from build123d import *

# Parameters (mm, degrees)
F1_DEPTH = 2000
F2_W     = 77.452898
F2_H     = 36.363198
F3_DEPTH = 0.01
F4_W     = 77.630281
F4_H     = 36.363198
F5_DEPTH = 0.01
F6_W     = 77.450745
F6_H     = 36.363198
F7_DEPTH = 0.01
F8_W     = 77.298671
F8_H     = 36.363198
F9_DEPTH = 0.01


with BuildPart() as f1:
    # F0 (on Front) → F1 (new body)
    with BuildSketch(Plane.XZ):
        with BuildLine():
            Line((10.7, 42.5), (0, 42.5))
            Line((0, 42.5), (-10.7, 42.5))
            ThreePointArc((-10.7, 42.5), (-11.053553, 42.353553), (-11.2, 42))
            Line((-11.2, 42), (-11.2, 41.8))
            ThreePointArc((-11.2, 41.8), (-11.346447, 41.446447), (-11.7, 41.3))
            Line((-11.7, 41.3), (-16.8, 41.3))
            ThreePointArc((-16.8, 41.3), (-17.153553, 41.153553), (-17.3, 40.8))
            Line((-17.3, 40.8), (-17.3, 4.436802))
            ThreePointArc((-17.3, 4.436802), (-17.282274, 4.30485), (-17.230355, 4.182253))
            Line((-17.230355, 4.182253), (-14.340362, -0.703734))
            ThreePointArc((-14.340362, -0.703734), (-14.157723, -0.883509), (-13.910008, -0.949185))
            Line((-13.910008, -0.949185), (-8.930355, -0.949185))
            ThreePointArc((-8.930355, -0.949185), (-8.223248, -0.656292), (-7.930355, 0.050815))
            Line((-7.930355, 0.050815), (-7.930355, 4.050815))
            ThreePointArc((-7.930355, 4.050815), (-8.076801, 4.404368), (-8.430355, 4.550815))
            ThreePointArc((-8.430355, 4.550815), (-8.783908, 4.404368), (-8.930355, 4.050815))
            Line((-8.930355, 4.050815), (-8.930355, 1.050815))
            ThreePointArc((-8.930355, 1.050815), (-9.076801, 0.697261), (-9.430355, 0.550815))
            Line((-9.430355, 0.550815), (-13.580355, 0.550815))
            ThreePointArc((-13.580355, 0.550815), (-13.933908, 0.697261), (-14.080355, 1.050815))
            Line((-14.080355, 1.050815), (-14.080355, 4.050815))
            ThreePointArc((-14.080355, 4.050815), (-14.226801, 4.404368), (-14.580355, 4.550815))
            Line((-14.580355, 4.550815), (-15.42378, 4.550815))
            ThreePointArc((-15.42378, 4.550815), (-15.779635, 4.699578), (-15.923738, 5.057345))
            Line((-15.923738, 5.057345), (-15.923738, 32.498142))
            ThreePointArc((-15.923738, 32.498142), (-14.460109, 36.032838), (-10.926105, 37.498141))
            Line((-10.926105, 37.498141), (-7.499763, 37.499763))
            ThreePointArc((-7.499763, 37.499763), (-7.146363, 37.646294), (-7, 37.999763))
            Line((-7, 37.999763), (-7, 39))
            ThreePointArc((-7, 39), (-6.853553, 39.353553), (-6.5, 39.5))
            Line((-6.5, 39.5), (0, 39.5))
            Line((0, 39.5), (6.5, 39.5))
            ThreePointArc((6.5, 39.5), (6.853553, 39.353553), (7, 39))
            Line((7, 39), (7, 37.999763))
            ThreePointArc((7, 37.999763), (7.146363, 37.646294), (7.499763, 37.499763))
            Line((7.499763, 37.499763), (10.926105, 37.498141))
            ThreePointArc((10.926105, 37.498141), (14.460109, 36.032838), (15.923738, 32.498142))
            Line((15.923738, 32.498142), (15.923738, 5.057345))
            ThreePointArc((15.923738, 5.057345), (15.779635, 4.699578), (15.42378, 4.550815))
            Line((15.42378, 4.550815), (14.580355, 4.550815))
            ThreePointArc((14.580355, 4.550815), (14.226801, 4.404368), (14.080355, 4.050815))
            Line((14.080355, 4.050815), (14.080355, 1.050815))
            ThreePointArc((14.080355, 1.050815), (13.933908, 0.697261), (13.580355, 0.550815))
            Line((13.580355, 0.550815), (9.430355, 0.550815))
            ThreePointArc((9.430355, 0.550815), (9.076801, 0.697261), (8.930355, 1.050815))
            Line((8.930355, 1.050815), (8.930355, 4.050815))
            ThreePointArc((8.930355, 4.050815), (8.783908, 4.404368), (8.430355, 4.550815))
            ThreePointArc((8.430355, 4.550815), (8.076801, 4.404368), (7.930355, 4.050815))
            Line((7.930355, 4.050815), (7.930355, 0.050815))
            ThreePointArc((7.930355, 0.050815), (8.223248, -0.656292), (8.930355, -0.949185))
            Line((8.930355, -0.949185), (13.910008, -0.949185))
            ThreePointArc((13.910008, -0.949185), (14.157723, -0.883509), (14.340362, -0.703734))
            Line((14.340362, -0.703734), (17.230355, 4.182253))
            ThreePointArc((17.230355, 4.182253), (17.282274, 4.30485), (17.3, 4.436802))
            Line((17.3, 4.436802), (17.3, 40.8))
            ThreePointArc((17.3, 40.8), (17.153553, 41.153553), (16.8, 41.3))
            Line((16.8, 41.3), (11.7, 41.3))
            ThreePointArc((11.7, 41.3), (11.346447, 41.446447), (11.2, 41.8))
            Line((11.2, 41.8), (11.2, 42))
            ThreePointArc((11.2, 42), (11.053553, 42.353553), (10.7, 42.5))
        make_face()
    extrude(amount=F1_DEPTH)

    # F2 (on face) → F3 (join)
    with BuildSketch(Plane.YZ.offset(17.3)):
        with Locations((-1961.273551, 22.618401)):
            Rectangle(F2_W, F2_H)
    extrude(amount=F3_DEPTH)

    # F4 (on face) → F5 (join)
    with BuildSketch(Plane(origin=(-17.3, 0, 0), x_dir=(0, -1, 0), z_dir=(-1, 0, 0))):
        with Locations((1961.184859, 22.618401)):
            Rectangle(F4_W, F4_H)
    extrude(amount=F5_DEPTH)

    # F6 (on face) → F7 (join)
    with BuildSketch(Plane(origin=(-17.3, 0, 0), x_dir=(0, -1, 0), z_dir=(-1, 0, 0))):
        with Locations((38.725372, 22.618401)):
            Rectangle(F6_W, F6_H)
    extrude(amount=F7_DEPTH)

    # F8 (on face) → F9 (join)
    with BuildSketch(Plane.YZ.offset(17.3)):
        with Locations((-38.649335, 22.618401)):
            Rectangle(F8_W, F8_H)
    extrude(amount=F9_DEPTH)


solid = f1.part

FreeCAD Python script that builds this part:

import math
import FreeCAD as App
import Part
import Sketcher
from FreeCAD import Vector

doc = App.newDocument("Part")
params = doc.addObject("Spreadsheet::Sheet", "Params")
for row, (alias, value) in enumerate([
    ("sketch1_radius", "0.999999 mm"),
    ("sketch1_radius2", "5 mm"),
    ("sketch1_width", "13 mm"),
    ("sketch1_height", "4 mm"),
    ("sketch1_height2", "3 mm"),
    ("pad1_length", "2000 mm"),
    ("pad2_length", "0.01 mm"),
    ("pad3_length", "0.01 mm"),
    ("pad4_length", "0.01 mm"),
    ("pad5_length", "0.01 mm"),
], start=1):
    params.set(f"A{row}", alias)
    params.set(f"B{row}", "=" + value)
    params.setAlias(f"B{row}", alias)

body = doc.addObject("PartDesign::Body", "Body")

sketch1 = body.newObject("Sketcher::SketchObject", "Sketch")
sketch1.AttachmentSupport = (doc.getObject("XZ_Plane"), [""])
sketch1.MapMode = "FlatFace"
sketch1.addGeometry([
    Part.LineSegment(Vector(10.7, 42.5, 0), Vector(-10.7, 42.5, 0)),
    Part.ArcOfCircle(Part.Circle(Vector(-10.699999, 41.999999, 0), Vector(0, 0, 1), 0.500001), math.radians(90.000153), math.radians(179.999847)),
    Part.LineSegment(Vector(-11.2, 42, 0), Vector(-11.2, 41.8, 0)),
    Part.ArcOfCircle(Part.Circle(Vector(-11.700001, 41.800001, 0), Vector(0, 0, 1), 0.500001), math.radians(-89.999847), math.radians(-0.000153)),
    Part.LineSegment(Vector(-11.7, 41.3, 0), Vector(-16.8, 41.3, 0)),
    Part.ArcOfCircle(Part.Circle(Vector(-16.799999, 40.799999, 0), Vector(0, 0, 1), 0.500001), math.radians(90.000153), math.radians(179.999847)),
    Part.LineSegment(Vector(-17.3, 40.8, 0), Vector(-17.3, 4.436802, 0)),
    Part.ArcOfCircle(Part.Circle(Vector(-16.799979, 4.436807, 0), Vector(0, 0, 1), 0.500021), math.radians(-179.999474), math.radians(-149.39706)),
    Part.LineSegment(Vector(-17.230355, 4.182253, 0), Vector(-14.340362, -0.703734, 0)),
    Part.ArcOfCircle(Part.Circle(Vector(-13.910008, -0.449186, 0), Vector(0, 0, 1), 0.499999), math.radians(-149.396319), math.radians(-89.999947)),
    Part.LineSegment(Vector(-13.910008, -0.949185, 0), Vector(-8.930355, -0.949185, 0)),
    Part.ArcOfCircle(Part.Circle(Vector(-8.930354, 0.050814, 0), Vector(0, 0, 1), 0.999999), math.radians(-90.000043), math.radians(0.000043)),
    Part.LineSegment(Vector(-7.930355, 0.050815, 0), Vector(-7.930355, 4.050815, 0)),
    Part.ArcOfCircle(Part.Circle(Vector(-8.430355, 4.050815, 0), Vector(0, 0, 1), 0.5), math.radians(-0.000043), math.radians(90.000043)),
    Part.ArcOfCircle(Part.Circle(Vector(-8.430354, 4.050814, 0), Vector(0, 0, 1), 0.500001), math.radians(90.000153), math.radians(179.999847)),
    Part.LineSegment(Vector(-8.930355, 4.050815, 0), Vector(-8.930355, 1.050815, 0)),
    Part.ArcOfCircle(Part.Circle(Vector(-9.430353, 1.050813, 0), Vector(0, 0, 1), 0.499998), math.radians(-90.000238), math.radians(0.000238)),
    Part.LineSegment(Vector(-9.430355, 0.550815, 0), Vector(-13.580355, 0.550815, 0)),
    Part.ArcOfCircle(Part.Circle(Vector(-13.580355, 1.050815, 0), Vector(0, 0, 1), 0.5), math.radians(179.999957), math.radians(270.000043)),
    Part.LineSegment(Vector(-14.080355, 1.050815, 0), Vector(-14.080355, 4.050815, 0)),
    Part.ArcOfCircle(Part.Circle(Vector(-14.580355, 4.050815, 0), Vector(0, 0, 1), 0.5), math.radians(-0.000043), math.radians(90.000043)),
    Part.LineSegment(Vector(-14.580355, 4.550815, 0), Vector(-15.42378, 4.550815, 0)),
    Part.ArcOfCircle(Part.Circle(Vector(-15.42378, 5.050816, 0), Vector(0, 0, 1), 0.500001), math.radians(179.251763), math.radians(270.000006)),
    Part.LineSegment(Vector(-15.923738, 5.057345, 0), Vector(-15.923738, 32.498142, 0)),
    Part.ArcOfCircle(Part.Circle(Vector(-10.923738, 32.498141, 0), Vector(0, 0, 1), 5), math.radians(90.027127), math.radians(179.999992)),
    Part.LineSegment(Vector(-10.926105, 37.498141, 0), Vector(-7.499763, 37.499763, 0)),
    Part.ArcOfCircle(Part.Circle(Vector(-7.500001, 37.999764, 0), Vector(0, 0, 1), 0.500001), math.radians(-89.972682), math.radians(-0.000154)),
    Part.LineSegment(Vector(-7, 37.999763, 0), Vector(-7, 39, 0)),
    Part.ArcOfCircle(Part.Circle(Vector(-6.499999, 38.999999, 0), Vector(0, 0, 1), 0.500001), math.radians(90.000153), math.radians(179.999847)),
    Part.LineSegment(Vector(-6.5, 39.5, 0), Vector(6.5, 39.5, 0)),
    Part.ArcOfCircle(Part.Circle(Vector(6.499999, 38.999999, 0), Vector(0, 0, 1), 0.500001), math.radians(0.000153), math.radians(89.999847)),
    Part.LineSegment(Vector(7, 39, 0), Vector(7, 37.999763, 0)),
    Part.ArcOfCircle(Part.Circle(Vector(7.500001, 37.999764, 0), Vector(0, 0, 1), 0.500001), math.radians(-179.999846), math.radians(-90.027318)),
    Part.LineSegment(Vector(7.499763, 37.499763, 0), Vector(10.926105, 37.498141, 0)),
    Part.ArcOfCircle(Part.Circle(Vector(10.923738, 32.498141, 0), Vector(0, 0, 1), 5), math.radians(0.000008), math.radians(89.972873)),
    Part.LineSegment(Vector(15.923738, 32.498142, 0), Vector(15.923738, 5.057345, 0)),
    Part.ArcOfCircle(Part.Circle(Vector(15.42378, 5.050816, 0), Vector(0, 0, 1), 0.500001), math.radians(-90.000006), math.radians(0.748237)),
    Part.LineSegment(Vector(15.42378, 4.550815, 0), Vector(14.580355, 4.550815, 0)),
    Part.ArcOfCircle(Part.Circle(Vector(14.580355, 4.050815, 0), Vector(0, 0, 1), 0.5), math.radians(89.999957), math.radians(180.000043)),
    Part.LineSegment(Vector(14.080355, 4.050815, 0), Vector(14.080355, 1.050815, 0)),
    Part.ArcOfCircle(Part.Circle(Vector(13.580355, 1.050815, 0), Vector(0, 0, 1), 0.5), math.radians(-90.000043), math.radians(0.000043)),
    Part.LineSegment(Vector(13.580355, 0.550815, 0), Vector(9.430355, 0.550815, 0)),
    Part.ArcOfCircle(Part.Circle(Vector(9.430353, 1.050813, 0), Vector(0, 0, 1), 0.499998), math.radians(179.999762), math.radians(270.000238)),
    Part.LineSegment(Vector(8.930355, 1.050815, 0), Vector(8.930355, 4.050815, 0)),
    Part.ArcOfCircle(Part.Circle(Vector(8.430354, 4.050814, 0), Vector(0, 0, 1), 0.500001), math.radians(0.000153), math.radians(89.999847)),
    Part.ArcOfCircle(Part.Circle(Vector(8.430355, 4.050815, 0), Vector(0, 0, 1), 0.5), math.radians(89.999957), math.radians(180.000043)),
    Part.LineSegment(Vector(7.930355, 4.050815, 0), Vector(7.930355, 0.050815, 0)),
    Part.ArcOfCircle(Part.Circle(Vector(8.930354, 0.050814, 0), Vector(0, 0, 1), 0.999999), math.radians(179.999957), math.radians(270.000043)),
    Part.LineSegment(Vector(8.930355, -0.949185, 0), Vector(13.910008, -0.949185, 0)),
    Part.ArcOfCircle(Part.Circle(Vector(13.910008, -0.449186, 0), Vector(0, 0, 1), 0.499999), math.radians(-90.000053), math.radians(-30.603681)),
    Part.LineSegment(Vector(14.340362, -0.703734, 0), Vector(17.230355, 4.182253, 0)),
    Part.ArcOfCircle(Part.Circle(Vector(16.799979, 4.436807, 0), Vector(0, 0, 1), 0.500021), math.radians(-30.60294), math.radians(-0.000526)),
    Part.LineSegment(Vector(17.3, 4.436802, 0), Vector(17.3, 40.8, 0)),
    Part.ArcOfCircle(Part.Circle(Vector(16.799999, 40.799999, 0), Vector(0, 0, 1), 0.500001), math.radians(0.000153), math.radians(89.999847)),
    Part.LineSegment(Vector(16.8, 41.3, 0), Vector(11.7, 41.3, 0)),
    Part.ArcOfCircle(Part.Circle(Vector(11.700001, 41.800001, 0), Vector(0, 0, 1), 0.500001), math.radians(-179.999847), math.radians(-90.000153)),
    Part.LineSegment(Vector(11.2, 41.8, 0), Vector(11.2, 42, 0)),
    Part.ArcOfCircle(Part.Circle(Vector(10.699999, 41.999999, 0), Vector(0, 0, 1), 0.500001), math.radians(0.000153), math.radians(89.999847)),
], False)
sketch1.addConstraint([
    Sketcher.Constraint("Coincident", 0, 2, 1, 1),
    Sketcher.Constraint("Coincident", 1, 2, 2, 1),
    Sketcher.Constraint("Coincident", 2, 2, 3, 2),
    Sketcher.Constraint("Coincident", 3, 1, 4, 1),
    Sketcher.Constraint("Coincident", 4, 2, 5, 1),
    Sketcher.Constraint("Coincident", 5, 2, 6, 1),
    Sketcher.Constraint("Coincident", 6, 2, 7, 1),
    Sketcher.Constraint("Coincident", 7, 2, 8, 1),
    Sketcher.Constraint("Tangent", 8, 2, 9, 1),
    Sketcher.Constraint("Tangent", 9, 2, 10, 1),
    Sketcher.Constraint("Tangent", 10, 2, 11, 1),
    Sketcher.Constraint("Tangent", 11, 2, 12, 1),
    Sketcher.Constraint("Tangent", 12, 2, 13, 1),
    Sketcher.Constraint("Tangent", 13, 2, 14, 1),
    Sketcher.Constraint("Coincident", 14, 2, 15, 1),
    Sketcher.Constraint("Coincident", 15, 2, 16, 2),
    Sketcher.Constraint("Coincident", 16, 1, 17, 1),
    Sketcher.Constraint("Tangent", 17, 2, 18, 2),
    Sketcher.Constraint("Tangent", 18, 1, 19, 1),
    Sketcher.Constraint("Tangent", 19, 2, 20, 1),
    Sketcher.Constraint("Tangent", 20, 2, 21, 1),
    Sketcher.Constraint("Tangent", 21, 2, 22, 2),
    Sketcher.Constraint("Coincident", 22, 1, 23, 1),
    Sketcher.Constraint("Tangent", 23, 2, 24, 2),
    Sketcher.Constraint("Tangent", 24, 1, 25, 1),
    Sketcher.Constraint("Coincident", 25, 2, 26, 1),
    Sketcher.Constraint("Coincident", 26, 2, 27, 1),
    Sketcher.Constraint("Coincident", 27, 2, 28, 2),
    Sketcher.Constraint("Coincident", 28, 1, 29, 1),
    Sketcher.Constraint("Coincident", 29, 2, 30, 2),
    Sketcher.Constraint("Coincident", 30, 1, 31, 1),
    Sketcher.Constraint("Coincident", 31, 2, 32, 1),
    Sketcher.Constraint("Coincident", 32, 2, 33, 1),
    Sketcher.Constraint("Tangent", 33, 2, 34, 2),
    Sketcher.Constraint("Tangent", 34, 1, 35, 1),
    Sketcher.Constraint("Coincident", 35, 2, 36, 2),
    Sketcher.Constraint("Tangent", 36, 1, 37, 1),
    Sketcher.Constraint("Tangent", 37, 2, 38, 1),
    Sketcher.Constraint("Tangent", 38, 2, 39, 1),
    Sketcher.Constraint("Tangent", 39, 2, 40, 2),
    Sketcher.Constraint("Tangent", 40, 1, 41, 1),
    Sketcher.Constraint("Coincident", 41, 2, 42, 2),
    Sketcher.Constraint("Coincident", 42, 1, 43, 1),
    Sketcher.Constraint("Coincident", 43, 2, 44, 1),
    Sketcher.Constraint("Tangent", 44, 2, 45, 1),
    Sketcher.Constraint("Tangent", 45, 2, 46, 1),
    Sketcher.Constraint("Tangent", 46, 2, 47, 1),
    Sketcher.Constraint("Tangent", 47, 2, 48, 1),
    Sketcher.Constraint("Tangent", 48, 2, 49, 1),
    Sketcher.Constraint("Tangent", 49, 2, 50, 1),
    Sketcher.Constraint("Coincident", 50, 2, 51, 1),
    Sketcher.Constraint("Coincident", 51, 2, 52, 1),
    Sketcher.Constraint("Coincident", 52, 2, 53, 1),
    Sketcher.Constraint("Coincident", 53, 2, 54, 1),
    Sketcher.Constraint("Coincident", 54, 2, 55, 2),
    Sketcher.Constraint("Coincident", 55, 1, 56, 1),
    Sketcher.Constraint("Coincident", 56, 2, 57, 1),
    Sketcher.Constraint("Coincident", 57, 2, 0, 1),
    Sketcher.Constraint("Horizontal", 0),
    Sketcher.Constraint("Vertical", 2),
    Sketcher.Constraint("Horizontal", 4),
    Sketcher.Constraint("Vertical", 6),
    Sketcher.Constraint("Horizontal", 10),
    Sketcher.Constraint("Vertical", 12),
    Sketcher.Constraint("Vertical", 15),
    Sketcher.Constraint("Horizontal", 17),
    Sketcher.Constraint("Vertical", 19),
    Sketcher.Constraint("Horizontal", 21),
    Sketcher.Constraint("Vertical", 23),
    Sketcher.Constraint("Vertical", 27),
    Sketcher.Constraint("Horizontal", 29),
    Sketcher.Constraint("Vertical", 31),
    Sketcher.Constraint("Vertical", 35),
    Sketcher.Constraint("Horizontal", 37),
    Sketcher.Constraint("Vertical", 39),
    Sketcher.Constraint("Horizontal", 41),
    Sketcher.Constraint("Vertical", 43),
    Sketcher.Constraint("Vertical", 46),
    Sketcher.Constraint("Horizontal", 48),
    Sketcher.Constraint("Vertical", 52),
    Sketcher.Constraint("Horizontal", 54),
    Sketcher.Constraint("Vertical", 56),
    Sketcher.Constraint("Equal", 1, 3),
    Sketcher.Constraint("Equal", 3, 5),
    Sketcher.Constraint("Equal", 9, 13),
    Sketcher.Constraint("Equal", 13, 14),
    Sketcher.Constraint("Equal", 13, 16),
    Sketcher.Constraint("Equal", 16, 18),
    Sketcher.Constraint("Equal", 18, 20),
    Sketcher.Constraint("Equal", 20, 22),
    Sketcher.Constraint("Equal", 22, 26),
    Sketcher.Constraint("Equal", 26, 28),
    Sketcher.Constraint("Equal", 28, 30),
    Sketcher.Constraint("Equal", 30, 32),
    Sketcher.Constraint("Equal", 24, 34),
    Sketcher.Constraint("Equal", 32, 36),
    Sketcher.Constraint("Equal", 36, 38),
    Sketcher.Constraint("Equal", 38, 40),
    Sketcher.Constraint("Equal", 40, 42),
    Sketcher.Constraint("Equal", 40, 44),
    Sketcher.Constraint("Equal", 44, 45),
    Sketcher.Constraint("Equal", 11, 47),
    Sketcher.Constraint("Equal", 45, 49),
    Sketcher.Constraint("Equal", 7, 51),
    Sketcher.Constraint("Equal", 45, 53),
    Sketcher.Constraint("Equal", 53, 55),
    Sketcher.Constraint("Equal", 55, 57),
    Sketcher.Constraint("Symmetric", 26, 3, 32, 3, -2),
    Sketcher.Constraint("Symmetric", 24, 3, 34, 3, -2),
    Sketcher.Constraint("Symmetric", 22, 3, 36, 3, -2),
    Sketcher.Constraint("Symmetric", 18, 3, 40, 3, -2),
    Sketcher.Constraint("Symmetric", 13, 3, 44, 3, -2),
    Sketcher.Constraint("Symmetric", 9, 3, 49, 3, -2),
    Sketcher.Constraint("Symmetric", 7, 3, 51, 3, -2),
    Sketcher.Constraint("Symmetric", 5, 3, 53, 3, -2),
    Sketcher.Constraint("Symmetric", 2, 2, 55, 1, -2),
    Sketcher.Constraint("Horizontal", 14, 3, 20, 3),
    Sketcher.Constraint("Horizontal", 57, 3, 1, 2),
    Sketcher.Constraint("Horizontal", 55, 3, 2, 2),
    Sketcher.Constraint("Horizontal", 53, 3, 5, 2),
    Sketcher.Constraint("Horizontal", 12, 2, 14, 2),
    Sketcher.Constraint("Horizontal", 40, 3, 15, 2),
    Sketcher.Constraint("Horizontal", 32, 3, 26, 2),
    Sketcher.Constraint("Horizontal", 30, 3, 27, 2),
    Sketcher.Constraint("Horizontal", 27, 2, 30, 1),
    Sketcher.Constraint("Horizontal", 26, 2, 31, 2),
    Sketcher.Constraint("Horizontal", 39, 2, 42, 1),
    Sketcher.Constraint("Horizontal", 38, 2, 43, 2),
    Sketcher.Constraint("Horizontal", 7, 2, 50, 2),
    Sketcher.Constraint("Horizontal", 6, 2, 51, 2),
    Sketcher.Constraint("Horizontal", 5, 2, 52, 2),
    Sketcher.Constraint("Horizontal", 1, 2, 56, 2),
    Sketcher.Constraint("Vertical", 1, 3, 0, 2),
    Sketcher.Constraint("Vertical", 5, 3, 4, 2),
    Sketcher.Constraint("Vertical", 14, 3, 13, 2),
    Sketcher.Constraint("Vertical", 10, 2, 14, 2),
    Sketcher.Constraint("Vertical", 30, 3, 29, 2),
    Sketcher.Constraint("Vertical", 45, 3, 44, 2),
    Sketcher.Constraint("Vertical", 55, 3, 54, 2),
    Sketcher.Constraint("Equal", 17, 41),
    Sketcher.Constraint("Equal", 4, 54),
    Sketcher.Constraint("Equal", 25, 33),
    Sketcher.Constraint("Radius", 11, 0.999999),
    Sketcher.Constraint("Radius", 24, 5.0),
    Sketcher.Constraint("DistanceX", 29, 1, 29, 2, 13.0),
    Sketcher.Constraint("DistanceY", 12, 1, 12, 2, 4.0),
    Sketcher.Constraint("DistanceY", 15, 2, 15, 1, 3.0),
    Sketcher.Constraint("DistanceX", 0, 2, 0, 1, 21.4),
    Sketcher.Constraint("DistanceX", 4, 2, 4, 1, 5.1),
    Sketcher.Constraint("DistanceY", 2, 2, 2, 1, 0.2),
    Sketcher.Constraint("DistanceY", -1, 1, 1, 3, 41.999999),
    Sketcher.Constraint("DistanceY", -1, 1, 28, 3, 38.999999),
    Sketcher.Constraint("DistanceX", 26, 2, -1, 1, 7.0),
    Sketcher.Constraint("DistanceX", 17, 2, 17, 1, 4.15),
    Sketcher.Constraint("DistanceX", 1, 3, -1, 1, 10.699999),
    Sketcher.Constraint("DistanceX", 5, 3, -1, 1, 16.799999),
    Sketcher.Constraint("Radius", 7, 0.500021),
    Sketcher.Constraint("Distance", 8, 5.6767),
    Sketcher.Constraint("DistanceX", 10, 1, 10, 2, 4.979653),
    Sketcher.Constraint("DistanceX", 21, 2, 21, 1, 0.843425),
    Sketcher.Constraint("DistanceY", 6, 2, 6, 1, 36.363198),
    Sketcher.Constraint("DistanceY", 23, 1, 23, 2, 27.440797),
    Sketcher.Constraint("DistanceY", 27, 1, 27, 2, 1.000237),
    Sketcher.Constraint("DistanceX", 9, 3, -1, 1, 13.910008),
    Sketcher.Constraint("DistanceX", 22, 3, -1, 1, 15.42378),
    Sketcher.Constraint("DistanceY", -1, 1, 24, 3, 32.498141),
    Sketcher.Constraint("Distance", 25, 3.426342),
    Sketcher.Constraint("DistanceY", -1, 1, 7, 3, 4.436807),
    Sketcher.Constraint("DistanceY", 9, 3, -1, 1, 0.449186),
])
sketch1.setExpression("Constraints[142]", "Params.sketch1_radius")
sketch1.setExpression("Constraints[143]", "Params.sketch1_radius2")
sketch1.setExpression("Constraints[144]", "Params.sketch1_width")
sketch1.setExpression("Constraints[145]", "Params.sketch1_height")
sketch1.setExpression("Constraints[146]", "Params.sketch1_height2")
pad1 = body.newObject("PartDesign::Pad", "Pad")
pad1.Profile = sketch1
pad1.setExpression("Length", "Params.pad1_length")

sketch2 = body.newObject("Sketcher::SketchObject", "Sketch001")
sketch2.AttachmentSupport = (doc.getObject("YZ_Plane"), [""])
sketch2.MapMode = "FlatFace"
sketch2.AttachmentOffset = App.Placement(Vector(0, 0, 17.3), App.Rotation())
sketch2.addGeometry([
    Part.LineSegment(Vector(-2000, 40.8, 0), Vector(-2000, 4.436802, 0)),
    Part.LineSegment(Vector(-2000, 4.436802, 0), Vector(-1922.547102, 4.436802, 0)),
    Part.LineSegment(Vector(-1922.547102, 4.436802, 0), Vector(-1922.547102, 40.8, 0)),
    Part.LineSegment(Vector(-1922.547102, 40.8, 0), Vector(-2000, 40.8, 0)),
], False)
sketch2.addConstraint([
    Sketcher.Constraint("Coincident", 0, 2, 1, 1),
    Sketcher.Constraint("Coincident", 1, 2, 2, 1),
    Sketcher.Constraint("Coincident", 2, 2, 3, 1),
    Sketcher.Constraint("Coincident", 3, 2, 0, 1),
    Sketcher.Constraint("Vertical", 0),
    Sketcher.Constraint("Horizontal", 1),
    Sketcher.Constraint("Vertical", 2),
    Sketcher.Constraint("Horizontal", 3),
    Sketcher.Constraint("DistanceX", 0, 2, -1, 1, 2000.0),
    Sketcher.Constraint("DistanceY", -1, 1, 2, 2, 40.8),
    Sketcher.Constraint("DistanceX", 1, 1, 1, 2, 77.452898),
    Sketcher.Constraint("DistanceY", 0, 2, 0, 1, 36.363198),
])
pad2 = body.newObject("PartDesign::Pad", "Pad001")
pad2.Profile = sketch2
pad2.setExpression("Length", "Params.pad2_length")

sketch3 = body.newObject("Sketcher::SketchObject", "Sketch002")
sketch3.AttachmentSupport = (doc.getObject("YZ_Plane"), [""])
sketch3.MapMode = "FlatFace"
sketch3.AttachmentOffset = App.Placement(Vector(0, 0, -17.3), App.Rotation())
sketch3.addGeometry([
    Part.LineSegment(Vector(-1922.369719, 40.8, 0), Vector(-1922.369719, 4.436802, 0)),
    Part.LineSegment(Vector(-1922.369719, 4.436802, 0), Vector(-2000, 4.436802, 0)),
    Part.LineSegment(Vector(-2000, 4.436802, 0), Vector(-2000, 40.8, 0)),
    Part.LineSegment(Vector(-2000, 40.8, 0), Vector(-1922.369719, 40.8, 0)),
], False)
sketch3.addConstraint([
    Sketcher.Constraint("Coincident", 0, 2, 1, 1),
    Sketcher.Constraint("Coincident", 1, 2, 2, 1),
    Sketcher.Constraint("Coincident", 2, 2, 3, 1),
    Sketcher.Constraint("Coincident", 3, 2, 0, 1),
    Sketcher.Constraint("Vertical", 0),
    Sketcher.Constraint("Horizontal", 1),
    Sketcher.Constraint("Vertical", 2),
    Sketcher.Constraint("Horizontal", 3),
    Sketcher.Constraint("DistanceX", 1, 2, -1, 1, 2000.0),
    Sketcher.Constraint("DistanceY", -1, 1, 2, 2, 40.8),
    Sketcher.Constraint("DistanceX", 1, 2, 1, 1, 77.630281),
    Sketcher.Constraint("DistanceY", 0, 2, 0, 1, 36.363198),
])
pad3 = body.newObject("PartDesign::Pad", "Pad002")
pad3.Profile = sketch3
pad3.setExpression("Length", "Params.pad3_length")
pad3.Reversed = True

sketch4 = body.newObject("Sketcher::SketchObject", "Sketch003")
sketch4.AttachmentSupport = (doc.getObject("YZ_Plane"), [""])
sketch4.MapMode = "FlatFace"
sketch4.AttachmentOffset = App.Placement(Vector(0, 0, -17.3), App.Rotation())
sketch4.addGeometry([
    Part.LineSegment(Vector(0, 40.8, 0), Vector(0, 4.436802, 0)),
    Part.LineSegment(Vector(0, 4.436802, 0), Vector(-77.450744, 4.436802, 0)),
    Part.LineSegment(Vector(-77.450744, 4.436802, 0), Vector(-77.450744, 40.8, 0)),
    Part.LineSegment(Vector(-77.450744, 40.8, 0), Vector(0, 40.8, 0)),
], False)
sketch4.addConstraint([
    Sketcher.Constraint("Coincident", 0, 2, 1, 1),
    Sketcher.Constraint("Coincident", 1, 2, 2, 1),
    Sketcher.Constraint("Coincident", 2, 2, 3, 1),
    Sketcher.Constraint("Coincident", 3, 2, 0, 1),
    Sketcher.Constraint("Vertical", 0),
    Sketcher.Constraint("Horizontal", 1),
    Sketcher.Constraint("Vertical", 2),
    Sketcher.Constraint("Horizontal", 3),
    Sketcher.Constraint("PointOnObject", 0, 2, -2),
    Sketcher.Constraint("DistanceY", -1, 1, 2, 2, 40.8),
    Sketcher.Constraint("DistanceX", 1, 2, 1, 1, 77.450745),
    Sketcher.Constraint("DistanceY", 0, 2, 0, 1, 36.363198),
])
pad4 = body.newObject("PartDesign::Pad", "Pad003")
pad4.Profile = sketch4
pad4.setExpression("Length", "Params.pad4_length")
pad4.Reversed = True

sketch5 = body.newObject("Sketcher::SketchObject", "Sketch004")
sketch5.AttachmentSupport = (doc.getObject("YZ_Plane"), [""])
sketch5.MapMode = "FlatFace"
sketch5.AttachmentOffset = App.Placement(Vector(0, 0, 17.3), App.Rotation())
sketch5.addGeometry([
    Part.LineSegment(Vector(-77.298671, 40.8, 0), Vector(-77.298671, 4.436802, 0)),
    Part.LineSegment(Vector(-77.298671, 4.436802, 0), Vector(0, 4.436802, 0)),
    Part.LineSegment(Vector(0, 4.436802, 0), Vector(0, 40.8, 0)),
    Part.LineSegment(Vector(0, 40.8, 0), Vector(-77.298671, 40.8, 0)),
], False)
sketch5.addConstraint([
    Sketcher.Constraint("Coincident", 0, 2, 1, 1),
    Sketcher.Constraint("Coincident", 1, 2, 2, 1),
    Sketcher.Constraint("Coincident", 2, 2, 3, 1),
    Sketcher.Constraint("Coincident", 3, 2, 0, 1),
    Sketcher.Constraint("Vertical", 0),
    Sketcher.Constraint("Horizontal", 1),
    Sketcher.Constraint("Vertical", 2),
    Sketcher.Constraint("Horizontal", 3),
    Sketcher.Constraint("PointOnObject", 1, 2, -2),
    Sketcher.Constraint("DistanceY", -1, 1, 2, 2, 40.8),
    Sketcher.Constraint("DistanceX", 1, 1, 1, 2, 77.298671),
    Sketcher.Constraint("DistanceY", 0, 2, 0, 1, 36.363198),
])
pad5 = body.newObject("PartDesign::Pad", "Pad004")
pad5.Profile = sketch5
pad5.setExpression("Length", "Params.pad5_length")

doc.recompute()
